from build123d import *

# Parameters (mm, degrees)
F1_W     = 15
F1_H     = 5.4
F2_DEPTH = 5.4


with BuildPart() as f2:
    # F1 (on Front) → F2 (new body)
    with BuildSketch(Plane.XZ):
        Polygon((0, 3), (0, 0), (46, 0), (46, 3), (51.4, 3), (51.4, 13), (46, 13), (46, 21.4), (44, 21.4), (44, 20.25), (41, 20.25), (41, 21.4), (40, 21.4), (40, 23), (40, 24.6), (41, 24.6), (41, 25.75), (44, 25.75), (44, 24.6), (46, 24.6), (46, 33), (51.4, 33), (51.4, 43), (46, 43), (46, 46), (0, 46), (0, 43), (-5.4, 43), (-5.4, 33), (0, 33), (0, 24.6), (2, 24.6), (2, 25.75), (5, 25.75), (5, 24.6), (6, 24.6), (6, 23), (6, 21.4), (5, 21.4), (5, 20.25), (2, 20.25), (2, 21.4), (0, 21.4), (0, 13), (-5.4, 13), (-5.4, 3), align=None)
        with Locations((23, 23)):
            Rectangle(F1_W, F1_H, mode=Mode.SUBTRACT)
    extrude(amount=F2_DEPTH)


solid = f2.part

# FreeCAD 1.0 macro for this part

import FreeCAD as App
import Part
import Sketcher


def add_polygon(sketch, points):
    """Adds a closed chain of lines whose ends are joined by coincident constraints."""
    first, n = sketch.GeometryCount, len(points)
    for a, b in zip(points, points[1:] + points[:1]):
        sketch.addGeometry(Part.LineSegment(App.Vector(*a, 0), App.Vector(*b, 0)), False)
    for i in range(n):
        sketch.addConstraint(Sketcher.Constraint("Coincident", first + i, 2, first + (i + 1) % n, 1))

doc = App.newDocument("Part")
body = doc.addObject("PartDesign::Body", "Body")

# Sketch on XZ plane
sketch1 = body.newObject("Sketcher::SketchObject", "Sketch")
sketch1.AttachmentSupport = (doc.getObject("XZ_Plane"), [""])
sketch1.MapMode = "FlatFace"
add_polygon(sketch1, [(0, 3), (0, 0), (46, 0), (46, 3), (51.4, 3), (51.4, 13), (46, 13), (46, 21.4), (44, 21.4), (44, 20.2), (41, 20.2), (41, 21.4), (40, 21.4), (40, 24.6), (41, 24.6), (41, 25.8), (44, 25.8), (44, 24.6), (46, 24.6), (46, 33), (51.4, 33), (51.4, 43), (46, 43), (46, 46), (0, 46), (0, 43), (-5.4, 43), (-5.4, 33), (0, 33), (0, 24.6), (2, 24.6), (2, 25.8), (5, 25.8), (5, 24.6), (6, 24.6), (6, 21.4), (5, 21.4), (5, 20.2), (2, 20.2), (2, 21.4), (0, 21.4), (0, 13), (-5.4, 13), (-5.4, 3)])  # lines 0-43
add_polygon(sketch1, [(30.5, 20.3), (15.5, 20.3), (15.5, 25.7), (30.5, 25.7)])  # lines 44-47
sketch1.addConstraint(Sketcher.Constraint("Vertical", 0))
sketch1.addConstraint(Sketcher.Constraint("Horizontal", 1))
sketch1.addConstraint(Sketcher.Constraint("Vertical", 2))
sketch1.addConstraint(Sketcher.Constraint("Horizontal", 3))
sketch1.addConstraint(Sketcher.Constraint("Vertical", 4))
sketch1.addConstraint(Sketcher.Constraint("Horizontal", 5))
sketch1.addConstraint(Sketcher.Constraint("Vertical", 6))
sketch1.addConstraint(Sketcher.Constraint("Horizontal", 7))
sketch1.addConstraint(Sketcher.Constraint("Vertical", 8))
sketch1.addConstraint(Sketcher.Constraint("Horizontal", 9))
sketch1.addConstraint(Sketcher.Constraint("Vertical", 10))
sketch1.addConstraint(Sketcher.Constraint("Horizontal", 11))
sketch1.addConstraint(Sketcher.Constraint("Vertical", 12))
sketch1.addConstraint(Sketcher.Constraint("Horizontal", 13))
sketch1.addConstraint(Sketcher.Constraint("Vertical", 14))
sketch1.addConstraint(Sketcher.Constraint("Horizontal", 15))
sketch1.addConstraint(Sketcher.Constraint("Vertical", 16))
sketch1.addConstraint(Sketcher.Constraint("Horizontal", 17))
sketch1.addConstraint(Sketcher.Constraint("Vertical", 18))
sketch1.addConstraint(Sketcher.Constraint("Horizontal", 19))
sketch1.addConstraint(Sketcher.Constraint("Vertical", 20))
sketch1.addConstraint(Sketcher.Constraint("Horizontal", 21))
sketch1.addConstraint(Sketcher.Constraint("Vertical", 22))
sketch1.addConstraint(Sketcher.Constraint("Horizontal", 23))
sketch1.addConstraint(Sketcher.Constraint("Vertical", 24))
sketch1.addConstraint(Sketcher.Constraint("Horizontal", 25))
sketch1.addConstraint(Sketcher.Constraint("Vertical", 26))
sketch1.addConstraint(Sketcher.Constraint("Horizontal", 27))
sketch1.addConstraint(Sketcher.Constraint("Vertical", 28))
sketch1.addConstraint(Sketcher.Constraint("Horizontal", 29))
sketch1.addConstraint(Sketcher.Constraint("Vertical", 30))
sketch1.addConstraint(Sketcher.Constraint("Horizontal", 31))
sketch1.addConstraint(Sketcher.Constraint("Vertical", 32))
sketch1.addConstraint(Sketcher.Constraint("Horizontal", 33))
sketch1.addConstraint(Sketcher.Constraint("Vertical", 34))
sketch1.addConstraint(Sketcher.Constraint("Horizontal", 35))
sketch1.addConstraint(Sketcher.Constraint("Vertical", 36))
sketch1.addConstraint(Sketcher.Constraint("Horizontal", 37))
sketch1.addConstraint(Sketcher.Constraint("Vertical", 38))
sketch1.addConstraint(Sketcher.Constraint("Horizontal", 39))
sketch1.addConstraint(Sketcher.Constraint("Vertical", 40))
sketch1.addConstraint(Sketcher.Constraint("Horizontal", 41))
sketch1.addConstraint(Sketcher.Constraint("Vertical", 42))
sketch1.addConstraint(Sketcher.Constraint("Horizontal", 43))
sketch1.addConstraint(Sketcher.Constraint("Horizontal", 44))
sketch1.addConstraint(Sketcher.Constraint("Vertical", 45))
sketch1.addConstraint(Sketcher.Constraint("Horizontal", 46))
sketch1.addConstraint(Sketcher.Constraint("Vertical", 47))
sketch1.addConstraint(Sketcher.Constraint("Coincident", 0, 2, -1, 1))
sketch1.addConstraint(Sketcher.Constraint("PointOnObject", 23, 2, -2))
sketch1.addConstraint(Sketcher.Constraint("PointOnObject", 27, 2, -2))
sketch1.addConstraint(Sketcher.Constraint("PointOnObject", 39, 2, -2))
sketch1.addConstraint(Sketcher.Constraint("Horizontal", 7, 2, 10, 2))
sketch1.addConstraint(Sketcher.Constraint("Horizontal", 13, 2, 16, 2))
sketch1.addConstraint(Sketcher.Constraint("Horizontal", 21, 2, 24, 2))
sketch1.addConstraint(Sketcher.Constraint("Horizontal", 19, 2, 26, 2))
sketch1.addConstraint(Sketcher.Constraint("Horizontal", 17, 2, 28, 2))
sketch1.addConstraint(Sketcher.Constraint("Horizontal", 15, 2, 30, 2))
sketch1.addConstraint(Sketcher.Constraint("Horizontal", 29, 2, 32, 2))
sketch1.addConstraint(Sketcher.Constraint("Horizontal", 11, 2, 34, 2))
sketch1.addConstraint(Sketcher.Constraint("Horizontal", 9, 2, 36, 2))
sketch1.addConstraint(Sketcher.Constraint("Horizontal", 35, 2, 38, 2))
sketch1.addConstraint(Sketcher.Constraint("Horizontal", 5, 2, 40, 2))
sketch1.addConstraint(Sketcher.Constraint("Horizontal", 3, 2, 42, 2))
sketch1.addConstraint(Sketcher.Constraint("Vertical", 2, 2, 5, 2))
sketch1.addConstraint(Sketcher.Constraint("Vertical", 10, 2, 13, 2))
sketch1.addConstraint(Sketcher.Constraint("Vertical", 8, 2, 15, 2))
sketch1.addConstraint(Sketcher.Constraint("Vertical", 6, 2, 17, 2))
sketch1.addConstraint(Sketcher.Constraint("Vertical", 4, 2, 19, 2))
sketch1.addConstraint(Sketcher.Constraint("Vertical", 18, 2, 21, 2))
sketch1.addConstraint(Sketcher.Constraint("Vertical", 32, 2, 35, 2))
sketch1.addConstraint(Sketcher.Constraint("Vertical", 30, 2, 37, 2))
sketch1.addConstraint(Sketcher.Constraint("Vertical", 26, 2, 41, 2))
sketch1.addConstraint(Sketcher.Constraint("Equal", 21, 25))
sketch1.addConstraint(Sketcher.Constraint("Equal", 17, 29))
sketch1.addConstraint(Sketcher.Constraint("Equal", 15, 31))
sketch1.addConstraint(Sketcher.Constraint("Equal", 13, 33))
sketch1.addConstraint(Sketcher.Constraint("Equal", 37, 0))
sketch1.addConstraint(Sketcher.Constraint("Equal", 10, 14))
sketch1.addConstraint(Sketcher.Constraint("Equal", 6, 18))
sketch1.addConstraint(Sketcher.Constraint("Equal", 4, 20))
sketch1.addConstraint(Sketcher.Constraint("Equal", 2, 22))
sketch1.addConstraint(Sketcher.Constraint("Equal", 43, 45))
sketch1.addConstraint(Sketcher.Constraint("DistanceX", 1, 1, 1, 2, 46.0))
sketch1.addConstraint(Sketcher.Constraint("DistanceX", 7, 2, 7, 1, 2.0))
sketch1.addConstraint(Sketcher.Constraint("DistanceX", 9, 2, 9, 1, 3.0))
sketch1.addConstraint(Sketcher.Constraint("DistanceX", 11, 2, 11, 1, 1.0))
sketch1.addConstraint(Sketcher.Constraint("DistanceX", 44, 2, 44, 1, 15.0))
sketch1.addConstraint(Sketcher.Constraint("DistanceY", 4, 1, 4, 2, 10.0))
sketch1.addConstraint(Sketcher.Constraint("DistanceX", 3, 1, 3, 2, 5.4))
sketch1.addConstraint(Sketcher.Constraint("DistanceY", 6, 1, 6, 2, 8.4))
sketch1.addConstraint(Sketcher.Constraint("DistanceY", 12, 1, 12, 2, 3.2))
sketch1.addConstraint(Sketcher.Constraint("DistanceY", 8, 2, 8, 1, 1.15))
sketch1.addConstraint(Sketcher.Constraint("DistanceX", -1, 1, 44, 2, 15.5))
sketch1.addConstraint(Sketcher.Constraint("DistanceY", -1, 1, 44, 2, 20.3))
pad1 = body.newObject("PartDesign::Pad", "Pad")
pad1.Profile = sketch1
pad1.Length = 5.4

doc.recompute()
